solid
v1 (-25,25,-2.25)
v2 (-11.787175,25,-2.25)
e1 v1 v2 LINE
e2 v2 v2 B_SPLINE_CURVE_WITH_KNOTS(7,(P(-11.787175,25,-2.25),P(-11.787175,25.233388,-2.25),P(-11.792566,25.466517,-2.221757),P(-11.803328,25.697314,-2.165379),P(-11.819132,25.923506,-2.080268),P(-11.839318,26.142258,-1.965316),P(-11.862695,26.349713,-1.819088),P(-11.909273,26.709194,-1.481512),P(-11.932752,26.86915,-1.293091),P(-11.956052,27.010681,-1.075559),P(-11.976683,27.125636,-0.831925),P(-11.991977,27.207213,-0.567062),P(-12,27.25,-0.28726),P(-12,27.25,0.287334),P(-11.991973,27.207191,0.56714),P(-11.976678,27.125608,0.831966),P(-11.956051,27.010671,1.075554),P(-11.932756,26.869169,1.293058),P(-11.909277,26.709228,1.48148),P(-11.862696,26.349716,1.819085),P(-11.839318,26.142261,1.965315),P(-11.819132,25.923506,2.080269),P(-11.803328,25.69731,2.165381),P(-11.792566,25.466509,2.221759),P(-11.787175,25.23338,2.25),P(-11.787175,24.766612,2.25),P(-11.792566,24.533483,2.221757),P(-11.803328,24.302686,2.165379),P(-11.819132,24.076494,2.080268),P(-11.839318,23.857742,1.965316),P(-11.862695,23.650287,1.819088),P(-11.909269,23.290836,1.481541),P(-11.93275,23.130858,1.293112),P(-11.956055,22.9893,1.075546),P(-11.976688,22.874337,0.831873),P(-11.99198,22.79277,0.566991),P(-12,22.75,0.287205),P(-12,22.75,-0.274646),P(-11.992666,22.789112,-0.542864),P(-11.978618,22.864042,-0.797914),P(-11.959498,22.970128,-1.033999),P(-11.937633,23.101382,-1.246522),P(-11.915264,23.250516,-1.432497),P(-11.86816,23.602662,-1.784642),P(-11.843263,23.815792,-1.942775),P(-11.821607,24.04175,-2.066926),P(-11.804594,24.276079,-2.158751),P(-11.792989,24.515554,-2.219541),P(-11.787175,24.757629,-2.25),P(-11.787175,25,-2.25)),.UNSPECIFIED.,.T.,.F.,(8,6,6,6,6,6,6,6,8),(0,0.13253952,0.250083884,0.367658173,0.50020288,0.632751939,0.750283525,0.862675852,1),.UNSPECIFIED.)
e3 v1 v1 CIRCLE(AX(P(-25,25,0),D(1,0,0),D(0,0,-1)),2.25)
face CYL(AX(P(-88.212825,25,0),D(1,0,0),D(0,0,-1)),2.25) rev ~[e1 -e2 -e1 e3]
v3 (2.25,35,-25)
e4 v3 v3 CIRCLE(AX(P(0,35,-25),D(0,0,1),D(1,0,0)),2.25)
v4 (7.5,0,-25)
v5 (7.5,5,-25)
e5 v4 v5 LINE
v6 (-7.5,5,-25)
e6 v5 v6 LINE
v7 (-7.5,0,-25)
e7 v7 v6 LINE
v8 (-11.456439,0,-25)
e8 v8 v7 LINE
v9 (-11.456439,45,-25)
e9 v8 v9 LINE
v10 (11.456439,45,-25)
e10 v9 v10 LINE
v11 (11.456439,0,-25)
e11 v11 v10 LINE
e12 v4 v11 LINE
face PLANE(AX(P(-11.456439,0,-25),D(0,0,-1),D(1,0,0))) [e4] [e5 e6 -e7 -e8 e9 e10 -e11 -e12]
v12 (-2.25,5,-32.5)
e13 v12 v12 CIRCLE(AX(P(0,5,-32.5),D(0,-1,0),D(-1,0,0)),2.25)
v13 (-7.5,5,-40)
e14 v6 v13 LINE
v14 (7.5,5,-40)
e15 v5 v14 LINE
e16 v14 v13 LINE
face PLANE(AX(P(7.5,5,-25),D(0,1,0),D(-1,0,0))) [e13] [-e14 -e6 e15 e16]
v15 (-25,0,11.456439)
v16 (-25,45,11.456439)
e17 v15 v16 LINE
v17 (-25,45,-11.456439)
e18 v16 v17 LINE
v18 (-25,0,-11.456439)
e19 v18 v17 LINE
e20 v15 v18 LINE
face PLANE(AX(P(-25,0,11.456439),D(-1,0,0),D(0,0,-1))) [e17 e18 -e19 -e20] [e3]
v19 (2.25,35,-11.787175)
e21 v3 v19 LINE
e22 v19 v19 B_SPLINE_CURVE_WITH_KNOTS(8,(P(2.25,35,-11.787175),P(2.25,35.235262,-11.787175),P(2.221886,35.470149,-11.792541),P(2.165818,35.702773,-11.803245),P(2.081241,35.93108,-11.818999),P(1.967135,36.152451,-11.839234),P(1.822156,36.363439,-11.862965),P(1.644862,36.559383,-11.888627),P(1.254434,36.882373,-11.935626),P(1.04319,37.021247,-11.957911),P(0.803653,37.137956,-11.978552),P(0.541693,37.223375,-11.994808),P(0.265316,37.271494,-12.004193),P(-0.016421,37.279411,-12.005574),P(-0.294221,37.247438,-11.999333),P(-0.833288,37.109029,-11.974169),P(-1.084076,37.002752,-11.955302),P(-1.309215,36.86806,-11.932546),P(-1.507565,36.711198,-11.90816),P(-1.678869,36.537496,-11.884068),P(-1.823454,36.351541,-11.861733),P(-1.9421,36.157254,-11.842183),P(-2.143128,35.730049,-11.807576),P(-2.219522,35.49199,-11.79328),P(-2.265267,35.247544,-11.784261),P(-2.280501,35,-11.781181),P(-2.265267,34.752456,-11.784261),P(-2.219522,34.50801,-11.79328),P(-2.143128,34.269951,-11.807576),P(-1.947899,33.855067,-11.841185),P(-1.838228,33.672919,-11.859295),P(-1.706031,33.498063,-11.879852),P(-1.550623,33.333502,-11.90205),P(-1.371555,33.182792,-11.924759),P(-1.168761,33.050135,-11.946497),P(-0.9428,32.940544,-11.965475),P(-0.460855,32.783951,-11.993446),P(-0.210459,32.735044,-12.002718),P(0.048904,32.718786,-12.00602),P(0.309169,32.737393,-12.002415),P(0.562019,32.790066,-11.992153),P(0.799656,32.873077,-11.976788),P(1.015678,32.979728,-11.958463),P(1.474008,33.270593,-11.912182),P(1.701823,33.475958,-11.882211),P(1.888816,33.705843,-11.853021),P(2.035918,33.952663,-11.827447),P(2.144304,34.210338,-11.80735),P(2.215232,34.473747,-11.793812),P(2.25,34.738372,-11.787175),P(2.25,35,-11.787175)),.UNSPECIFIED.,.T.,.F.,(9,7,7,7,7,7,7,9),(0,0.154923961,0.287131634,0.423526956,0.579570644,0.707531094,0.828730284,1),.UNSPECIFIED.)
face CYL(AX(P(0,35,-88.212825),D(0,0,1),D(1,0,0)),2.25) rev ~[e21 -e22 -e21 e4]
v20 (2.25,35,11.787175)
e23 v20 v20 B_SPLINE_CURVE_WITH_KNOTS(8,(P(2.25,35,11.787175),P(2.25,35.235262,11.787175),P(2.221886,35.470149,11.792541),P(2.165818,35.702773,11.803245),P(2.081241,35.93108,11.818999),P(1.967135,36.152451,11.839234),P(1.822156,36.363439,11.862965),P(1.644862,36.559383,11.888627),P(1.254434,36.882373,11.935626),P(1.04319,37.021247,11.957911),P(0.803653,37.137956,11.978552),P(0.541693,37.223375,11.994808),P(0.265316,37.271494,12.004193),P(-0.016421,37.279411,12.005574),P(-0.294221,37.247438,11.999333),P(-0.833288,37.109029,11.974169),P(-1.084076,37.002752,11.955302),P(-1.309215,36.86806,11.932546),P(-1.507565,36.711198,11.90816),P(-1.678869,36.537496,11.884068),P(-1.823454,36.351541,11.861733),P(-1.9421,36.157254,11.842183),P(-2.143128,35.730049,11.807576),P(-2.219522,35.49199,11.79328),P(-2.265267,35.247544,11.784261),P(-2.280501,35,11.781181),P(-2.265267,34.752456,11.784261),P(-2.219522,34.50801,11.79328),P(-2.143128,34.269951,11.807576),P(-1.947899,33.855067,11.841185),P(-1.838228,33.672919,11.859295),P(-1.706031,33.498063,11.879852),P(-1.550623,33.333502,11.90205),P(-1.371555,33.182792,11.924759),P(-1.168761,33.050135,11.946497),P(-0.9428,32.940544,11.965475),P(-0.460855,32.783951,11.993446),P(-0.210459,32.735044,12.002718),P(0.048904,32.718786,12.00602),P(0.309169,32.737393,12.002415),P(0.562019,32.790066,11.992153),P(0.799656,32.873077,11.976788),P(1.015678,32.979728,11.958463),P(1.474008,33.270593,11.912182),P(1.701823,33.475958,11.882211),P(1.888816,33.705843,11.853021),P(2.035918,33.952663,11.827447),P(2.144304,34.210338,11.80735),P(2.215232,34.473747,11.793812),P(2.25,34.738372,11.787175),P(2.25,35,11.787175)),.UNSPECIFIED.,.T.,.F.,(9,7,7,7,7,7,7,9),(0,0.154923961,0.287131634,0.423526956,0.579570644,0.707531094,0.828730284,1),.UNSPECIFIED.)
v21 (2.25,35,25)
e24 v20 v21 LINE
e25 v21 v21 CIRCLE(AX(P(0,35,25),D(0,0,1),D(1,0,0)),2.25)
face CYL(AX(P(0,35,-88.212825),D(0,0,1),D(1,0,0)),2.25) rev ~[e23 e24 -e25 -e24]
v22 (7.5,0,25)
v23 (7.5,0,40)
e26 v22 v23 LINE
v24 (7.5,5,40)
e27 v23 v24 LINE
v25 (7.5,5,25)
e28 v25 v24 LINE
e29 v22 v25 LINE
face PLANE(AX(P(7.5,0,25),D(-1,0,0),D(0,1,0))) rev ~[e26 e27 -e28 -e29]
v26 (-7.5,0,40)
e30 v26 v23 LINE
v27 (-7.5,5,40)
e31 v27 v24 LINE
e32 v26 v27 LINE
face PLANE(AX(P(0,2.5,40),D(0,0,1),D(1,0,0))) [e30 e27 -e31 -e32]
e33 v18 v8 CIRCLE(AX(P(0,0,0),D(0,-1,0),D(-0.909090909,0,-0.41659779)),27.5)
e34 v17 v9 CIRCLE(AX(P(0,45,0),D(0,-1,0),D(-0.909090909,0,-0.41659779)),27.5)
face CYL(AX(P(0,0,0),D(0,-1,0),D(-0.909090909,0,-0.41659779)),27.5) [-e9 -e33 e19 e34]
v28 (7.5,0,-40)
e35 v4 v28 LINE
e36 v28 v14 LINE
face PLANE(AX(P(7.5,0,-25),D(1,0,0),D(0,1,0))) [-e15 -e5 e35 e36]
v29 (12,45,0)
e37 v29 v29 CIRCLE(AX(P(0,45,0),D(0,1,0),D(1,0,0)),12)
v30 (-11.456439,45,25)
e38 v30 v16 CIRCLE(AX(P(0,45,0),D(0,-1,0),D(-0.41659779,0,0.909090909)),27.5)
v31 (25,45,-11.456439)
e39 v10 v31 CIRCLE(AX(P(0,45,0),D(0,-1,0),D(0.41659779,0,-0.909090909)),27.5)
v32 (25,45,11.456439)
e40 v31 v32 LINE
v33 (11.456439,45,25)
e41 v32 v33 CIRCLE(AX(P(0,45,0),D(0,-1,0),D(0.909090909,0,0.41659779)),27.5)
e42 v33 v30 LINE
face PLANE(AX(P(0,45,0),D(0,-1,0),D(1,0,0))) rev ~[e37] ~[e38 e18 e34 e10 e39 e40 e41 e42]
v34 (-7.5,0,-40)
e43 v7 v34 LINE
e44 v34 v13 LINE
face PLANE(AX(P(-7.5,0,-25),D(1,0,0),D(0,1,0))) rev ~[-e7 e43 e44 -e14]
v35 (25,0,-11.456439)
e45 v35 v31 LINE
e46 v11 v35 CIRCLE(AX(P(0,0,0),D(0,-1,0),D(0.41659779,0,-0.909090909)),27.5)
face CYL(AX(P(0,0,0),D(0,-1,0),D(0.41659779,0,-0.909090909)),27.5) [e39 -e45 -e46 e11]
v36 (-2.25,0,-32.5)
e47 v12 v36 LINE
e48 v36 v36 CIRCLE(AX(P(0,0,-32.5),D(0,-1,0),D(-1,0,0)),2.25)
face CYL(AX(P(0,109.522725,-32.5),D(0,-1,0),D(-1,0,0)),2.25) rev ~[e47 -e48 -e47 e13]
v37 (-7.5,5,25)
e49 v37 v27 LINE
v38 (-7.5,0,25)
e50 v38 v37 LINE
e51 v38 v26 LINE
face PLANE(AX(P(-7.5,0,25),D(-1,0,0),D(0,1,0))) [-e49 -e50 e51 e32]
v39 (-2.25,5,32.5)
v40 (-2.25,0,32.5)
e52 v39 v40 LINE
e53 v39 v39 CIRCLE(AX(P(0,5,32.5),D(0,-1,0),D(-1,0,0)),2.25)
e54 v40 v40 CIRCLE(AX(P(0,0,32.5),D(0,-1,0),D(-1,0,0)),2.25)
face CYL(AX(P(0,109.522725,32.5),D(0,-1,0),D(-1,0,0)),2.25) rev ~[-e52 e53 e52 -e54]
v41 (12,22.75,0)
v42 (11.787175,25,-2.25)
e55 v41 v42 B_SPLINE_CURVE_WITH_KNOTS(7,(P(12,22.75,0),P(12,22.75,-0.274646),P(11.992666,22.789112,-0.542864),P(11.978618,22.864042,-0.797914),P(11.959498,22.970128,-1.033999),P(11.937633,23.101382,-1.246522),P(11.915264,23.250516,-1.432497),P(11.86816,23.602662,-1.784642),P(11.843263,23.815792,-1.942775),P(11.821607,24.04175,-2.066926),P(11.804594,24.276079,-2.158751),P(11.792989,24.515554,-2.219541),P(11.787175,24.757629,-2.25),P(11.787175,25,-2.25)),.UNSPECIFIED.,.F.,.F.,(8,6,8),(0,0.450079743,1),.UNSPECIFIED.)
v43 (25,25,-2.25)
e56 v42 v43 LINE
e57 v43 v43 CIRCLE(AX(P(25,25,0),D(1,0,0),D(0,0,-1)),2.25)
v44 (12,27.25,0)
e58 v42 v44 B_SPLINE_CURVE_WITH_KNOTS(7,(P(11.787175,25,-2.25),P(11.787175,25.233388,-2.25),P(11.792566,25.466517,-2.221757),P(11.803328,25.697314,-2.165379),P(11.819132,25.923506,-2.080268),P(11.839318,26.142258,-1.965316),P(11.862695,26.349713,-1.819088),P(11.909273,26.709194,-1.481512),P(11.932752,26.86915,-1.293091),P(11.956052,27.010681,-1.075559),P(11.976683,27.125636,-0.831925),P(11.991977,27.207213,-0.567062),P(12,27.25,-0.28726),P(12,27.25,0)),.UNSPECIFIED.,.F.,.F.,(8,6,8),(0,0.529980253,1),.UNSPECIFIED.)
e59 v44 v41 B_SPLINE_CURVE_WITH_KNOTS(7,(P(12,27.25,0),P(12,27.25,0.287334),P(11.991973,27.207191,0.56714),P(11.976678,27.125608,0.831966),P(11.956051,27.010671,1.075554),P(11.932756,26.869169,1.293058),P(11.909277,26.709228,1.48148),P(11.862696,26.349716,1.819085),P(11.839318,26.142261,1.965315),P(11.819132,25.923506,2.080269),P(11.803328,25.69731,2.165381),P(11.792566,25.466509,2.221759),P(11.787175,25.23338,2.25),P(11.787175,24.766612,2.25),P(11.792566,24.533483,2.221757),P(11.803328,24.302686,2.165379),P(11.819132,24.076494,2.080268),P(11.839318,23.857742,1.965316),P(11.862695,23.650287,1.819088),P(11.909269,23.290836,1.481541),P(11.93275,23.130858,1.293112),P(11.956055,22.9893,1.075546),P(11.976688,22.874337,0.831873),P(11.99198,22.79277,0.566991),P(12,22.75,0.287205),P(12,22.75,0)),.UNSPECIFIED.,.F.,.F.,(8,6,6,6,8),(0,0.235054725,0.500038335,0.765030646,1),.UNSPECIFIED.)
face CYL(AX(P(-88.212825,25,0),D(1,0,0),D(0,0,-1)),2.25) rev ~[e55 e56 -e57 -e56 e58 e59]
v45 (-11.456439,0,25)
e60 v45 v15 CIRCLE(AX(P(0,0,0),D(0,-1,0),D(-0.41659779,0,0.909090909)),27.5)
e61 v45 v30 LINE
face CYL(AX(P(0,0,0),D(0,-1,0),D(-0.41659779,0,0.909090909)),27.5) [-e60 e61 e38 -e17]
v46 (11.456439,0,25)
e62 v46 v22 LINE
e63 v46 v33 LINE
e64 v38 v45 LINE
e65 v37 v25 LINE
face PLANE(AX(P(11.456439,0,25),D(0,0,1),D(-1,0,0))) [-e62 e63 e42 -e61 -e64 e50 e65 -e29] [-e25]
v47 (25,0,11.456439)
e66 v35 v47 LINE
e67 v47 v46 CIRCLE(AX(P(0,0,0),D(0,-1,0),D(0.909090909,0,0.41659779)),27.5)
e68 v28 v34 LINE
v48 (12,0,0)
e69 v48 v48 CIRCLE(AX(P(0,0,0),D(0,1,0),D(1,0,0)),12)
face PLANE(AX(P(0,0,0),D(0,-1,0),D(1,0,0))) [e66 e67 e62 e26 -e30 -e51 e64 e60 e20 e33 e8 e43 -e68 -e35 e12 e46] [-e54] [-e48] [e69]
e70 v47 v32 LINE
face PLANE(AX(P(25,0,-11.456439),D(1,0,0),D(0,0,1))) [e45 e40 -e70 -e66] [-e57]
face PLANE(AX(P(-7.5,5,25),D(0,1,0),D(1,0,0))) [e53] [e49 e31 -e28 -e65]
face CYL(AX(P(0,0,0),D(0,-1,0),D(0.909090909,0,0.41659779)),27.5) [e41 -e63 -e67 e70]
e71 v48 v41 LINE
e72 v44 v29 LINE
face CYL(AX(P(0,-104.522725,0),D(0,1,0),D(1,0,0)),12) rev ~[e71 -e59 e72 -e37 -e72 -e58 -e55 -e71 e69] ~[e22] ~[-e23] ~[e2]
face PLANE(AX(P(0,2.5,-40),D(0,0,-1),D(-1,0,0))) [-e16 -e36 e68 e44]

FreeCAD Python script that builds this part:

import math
import FreeCAD as App
import Part
import Sketcher
from FreeCAD import Vector

doc = App.newDocument("Part")
body = doc.addObject("PartDesign::Body", "Body")

sketch1 = doc.addObject("Sketcher::SketchObject", "Sketch")
body.addObject(sketch1)
sketch1.AttachmentSupport = (doc.XZ_Plane, [""])
sketch1.MapMode = "FlatFace"
sketch1.addGeometry([
    Part.LineSegment(Vector(-11, -25, 0), Vector(11, -25, 0)),
    Part.ArcOfCircle(Part.Circle(Vector(0, 0, 0), Vector(0, 0, 1), 27), math.radians(-65), math.radians(-25)),
    Part.LineSegment(Vector(25, -11, 0), Vector(25, 11, 0)),
    Part.ArcOfCircle(Part.Circle(Vector(0, 0, 0), Vector(0, 0, 1), 27), math.radians(25), math.radians(65)),
    Part.LineSegment(Vector(11, 25, 0), Vector(-11, 25, 0)),
    Part.ArcOfCircle(Part.Circle(Vector(0, 0, 0), Vector(0, 0, 1), 27), math.radians(115), math.radians(155)),
    Part.LineSegment(Vector(-25, 11, 0), Vector(-25, -11, 0)),
    Part.ArcOfCircle(Part.Circle(Vector(0, 0, 0), Vector(0, 0, 1), 27), math.radians(-155), math.radians(-115)),
], False)
sketch1.addConstraint([
    Sketcher.Constraint("Coincident", 0, 2, 1, 1),
    Sketcher.Constraint("Coincident", 1, 2, 2, 1),
    Sketcher.Constraint("Coincident", 2, 2, 3, 1),
    Sketcher.Constraint("Coincident", 3, 2, 4, 1),
    Sketcher.Constraint("Coincident", 4, 2, 5, 1),
    Sketcher.Constraint("Coincident", 5, 2, 6, 1),
    Sketcher.Constraint("Coincident", 6, 2, 7, 1),
    Sketcher.Constraint("Coincident", 7, 2, 0, 1),
    Sketcher.Constraint("Horizontal", 0),
    Sketcher.Constraint("Vertical", 2),
    Sketcher.Constraint("Horizontal", 4),
    Sketcher.Constraint("Vertical", 6),
    Sketcher.Constraint("Coincident", 1, 3, -1, 1),
    Sketcher.Constraint("Coincident", 3, 3, -1, 1),
    Sketcher.Constraint("Coincident", 5, 3, -1, 1),
    Sketcher.Constraint("Coincident", 7, 3, -1, 1),
    Sketcher.Constraint("Equal", 1, 3),
    Sketcher.Constraint("Equal", 3, 5),
    Sketcher.Constraint("Equal", 5, 7),
    Sketcher.Constraint("Horizontal", 2, 2, 5, 2),
    Sketcher.Constraint("Vertical", 0, 2, 3, 2),
    Sketcher.Constraint("Equal", 4, 2),
    Sketcher.Constraint("Radius", 1, 27.5),
    Sketcher.Constraint("DistanceY", 0, 2, -1, 1, 25.0),
])
pad1 = doc.addObject("PartDesign::Pad", "Pad")
body.addObject(pad1)
pad1.Profile = sketch1
pad1.Length = 45
pad1.Reversed = True

sketch2 = doc.addObject("Sketcher::SketchObject", "Sketch001")
body.addObject(sketch2)
sketch2.AttachmentSupport = (doc.XY_Plane, [""])
sketch2.MapMode = "FlatFace"
sketch2.AttachmentOffset = App.Placement(Vector(0, 0, -25), App.Rotation())
sketch2.addGeometry([
    Part.LineSegment(Vector(8, 5, 0), Vector(8, 0, 0)),
    Part.LineSegment(Vector(8, 0, 0), Vector(-8, 0, 0)),
    Part.LineSegment(Vector(-8, 0, 0), Vector(-8, 5, 0)),
    Part.LineSegment(Vector(-8, 5, 0), Vector(8, 5, 0)),
], False)
sketch2.addConstraint([
    Sketcher.Constraint("Coincident", 0, 2, 1, 1),
    Sketcher.Constraint("Coincident", 1, 2, 2, 1),
    Sketcher.Constraint("Coincident", 2, 2, 3, 1),
    Sketcher.Constraint("Coincident", 3, 2, 0, 1),
    Sketcher.Constraint("Vertical", 0),
    Sketcher.Constraint("Horizontal", 1),
    Sketcher.Constraint("Vertical", 2),
    Sketcher.Constraint("Horizontal", 3),
    Sketcher.Constraint("Symmetric", 0, 2, 1, 2, -1, 1),
    Sketcher.Constraint("DistanceX", 1, 2, 1, 1, 15.0),
    Sketcher.Constraint("DistanceY", 0, 2, 0, 1, 5.0),
])
pad2 = doc.addObject("PartDesign::Pad", "Pad001")
body.addObject(pad2)
pad2.Profile = sketch2
pad2.Length = 15
pad2.Reversed = True

sketch3 = doc.addObject("Sketcher::SketchObject", "Sketch002")
body.addObject(sketch3)
sketch3.AttachmentSupport = (doc.XY_Plane, [""])
sketch3.MapMode = "FlatFace"
sketch3.AttachmentOffset = App.Placement(Vector(0, 0, 25), App.Rotation())
sketch3.addGeometry([
    Part.LineSegment(Vector(-8, 5, 0), Vector(-8, 0, 0)),
    Part.LineSegment(Vector(-8, 0, 0), Vector(8, 0, 0)),
    Part.LineSegment(Vector(8, 0, 0), Vector(8, 5, 0)),
    Part.LineSegment(Vector(8, 5, 0), Vector(-8, 5, 0)),
], False)
sketch3.addConstraint([
    Sketcher.Constraint("Coincident", 0, 2, 1, 1),
    Sketcher.Constraint("Coincident", 1, 2, 2, 1),
    Sketcher.Constraint("Coincident", 2, 2, 3, 1),
    Sketcher.Constraint("Coincident", 3, 2, 0, 1),
    Sketcher.Constraint("Vertical", 0),
    Sketcher.Constraint("Horizontal", 1),
    Sketcher.Constraint("Vertical", 2),
    Sketcher.Constraint("Horizontal", 3),
    Sketcher.Constraint("Symmetric", 0, 2, 1, 2, -1, 1),
    Sketcher.Constraint("DistanceX", 1, 1, 1, 2, 15.0),
    Sketcher.Constraint("DistanceY", 0, 2, 0, 1, 5.0),
])
pad3 = doc.addObject("PartDesign::Pad", "Pad002")
body.addObject(pad3)
pad3.Profile = sketch3
pad3.Length = 15

sketch4 = doc.addObject("Sketcher::SketchObject", "Sketch003")
body.addObject(sketch4)
sketch4.AttachmentSupport = (doc.XZ_Plane, [""])
sketch4.MapMode = "FlatFace"
sketch4.addGeometry(Part.Circle(Vector(0, 0, 0), Vector(0, 0, 1), 12), False)
sketch4.addConstraint([
    Sketcher.Constraint("Coincident", 0, 3, -1, 1),
    Sketcher.Constraint("Diameter", 0, 24.0),
])
doc.recompute()
hole = doc.addObject("PartDesign::Hole", "Hole")
body.addObject(hole)
hole.Profile = sketch4
hole.ThreadType = "None"
hole.Diameter = 24
hole.DepthType = "ThroughAll"

sketch5 = doc.addObject("Sketcher::SketchObject", "Sketch004")
body.addObject(sketch5)
sketch5.AttachmentSupport = (doc.XY_Plane, [""])
sketch5.MapMode = "FlatFace"
sketch5.AttachmentOffset = App.Placement(Vector(0, 0, -25), App.Rotation())
sketch5.addGeometry(Part.Circle(Vector(0, 35, 0), Vector(0, 0, 1), 2.2), False)
sketch5.addConstraint([
    Sketcher.Constraint("PointOnObject", 0, 3, -2),
    Sketcher.Constraint("Diameter", 0, 4.5),
    Sketcher.Constraint("DistanceY", -1, 1, 0, 3, 35.0),
])
doc.recompute()
hole2 = doc.addObject("PartDesign::Hole", "Hole001")
body.addObject(hole2)
hole2.Profile = sketch5
hole2.ThreadType = "None"
hole2.Diameter = 4.5
hole2.DepthType = "Dimension"
hole2.Depth = 63.212825
hole2.DrillPoint = "Flat"
hole2.Reversed = True

sketch6 = doc.addObject("Sketcher::SketchObject", "Sketch005")
body.addObject(sketch6)
sketch6.AttachmentSupport = (doc.YZ_Plane, [""])
sketch6.MapMode = "FlatFace"
sketch6.AttachmentOffset = App.Placement(Vector(0, 0, -25), App.Rotation())
sketch6.addGeometry(Part.Circle(Vector(25, 0, 0), Vector(0, 0, 1), 2.2), False)
sketch6.addConstraint([
    Sketcher.Constraint("PointOnObject", 0, 3, -1),
    Sketcher.Constraint("Diameter", 0, 4.5),
    Sketcher.Constraint("DistanceX", -1, 1, 0, 3, 25.0),
])
doc.recompute()
hole3 = doc.addObject("PartDesign::Hole", "Hole002")
body.addObject(hole3)
hole3.Profile = sketch6
hole3.ThreadType = "None"
hole3.Diameter = 4.5
hole3.DepthType = "Dimension"
hole3.Depth = 63.212825
hole3.DrillPoint = "Flat"
hole3.Reversed = True

sketch7 = doc.addObject("Sketcher::SketchObject", "Sketch006")
body.addObject(sketch7)
sketch7.AttachmentSupport = (doc.XZ_Plane, [""])
sketch7.MapMode = "FlatFace"
sketch7.AttachmentOffset = App.Placement(Vector(0, 0, -5), App.Rotation())
sketch7.addGeometry([
    Part.Circle(Vector(0, 32.5, 0), Vector(0, 0, 1), 2.2),
    Part.Circle(Vector(0, -32.5, 0), Vector(0, 0, 1), 2.2),
], False)
sketch7.addConstraint([
    Sketcher.Constraint("Equal", 0, 1),
    Sketcher.Constraint("Symmetric", 0, 3, 1, 3, -1, 1),
    Sketcher.Constraint("PointOnObject", 0, 3, -2),
    Sketcher.Constraint("Diameter", 0, 4.5),
    Sketcher.Constraint("DistanceY", 1, 3, 0, 3, 65.0),
])
doc.recompute()
hole4 = doc.addObject("PartDesign::Hole", "Hole003")
body.addObject(hole4)
hole4.Profile = sketch7
hole4.ThreadType = "None"
hole4.Diameter = 4.5
hole4.DepthType = "ThroughAll"
hole4.Reversed = True

doc.recompute()
